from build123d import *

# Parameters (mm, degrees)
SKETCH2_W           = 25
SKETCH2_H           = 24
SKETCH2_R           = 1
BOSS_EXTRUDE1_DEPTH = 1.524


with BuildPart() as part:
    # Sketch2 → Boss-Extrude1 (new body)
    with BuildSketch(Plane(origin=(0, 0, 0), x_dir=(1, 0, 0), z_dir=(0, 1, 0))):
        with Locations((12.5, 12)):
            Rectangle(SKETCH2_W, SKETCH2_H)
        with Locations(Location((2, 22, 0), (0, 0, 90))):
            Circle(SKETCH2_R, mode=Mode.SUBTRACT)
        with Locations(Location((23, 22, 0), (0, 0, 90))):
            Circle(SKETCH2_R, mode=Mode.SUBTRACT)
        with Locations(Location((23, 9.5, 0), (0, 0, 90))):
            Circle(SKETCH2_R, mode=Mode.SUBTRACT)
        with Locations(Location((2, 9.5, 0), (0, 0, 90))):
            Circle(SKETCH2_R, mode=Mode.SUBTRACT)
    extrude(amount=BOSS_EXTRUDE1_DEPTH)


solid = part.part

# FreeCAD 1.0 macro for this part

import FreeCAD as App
import Part
import Sketcher
from FreeCAD import Vector


def add_polygon(sketch, points):
    """Adds a closed chain of lines whose ends are joined by coincident constraints."""
    first, n = sketch.GeometryCount, len(points)
    for a, b in zip(points, points[1:] + points[:1]):
        sketch.addGeometry(Part.LineSegment(App.Vector(*a, 0), App.Vector(*b, 0)), False)
    for i in range(n):
        sketch.addConstraint(Sketcher.Constraint("Coincident", first + i, 2, first + (i + 1) % n, 1))

doc = App.newDocument("Part")
body = doc.addObject("PartDesign::Body", "Body")

# Sketch on XZ plane
sketch1 = doc.addObject("Sketcher::SketchObject", "Sketch")
body.addObject(sketch1)
sketch1.AttachmentSupport = (doc.XZ_Plane, [""])
sketch1.MapMode = "FlatFace"
add_polygon(sketch1, [(0, -24), (0, 0), (25, 0), (25, -24)])  # lines 0-3
sketch1.addGeometry(Part.Circle(Vector(2, -9.5, 0), Vector(0, 0, 1), 1), False)  # 4
sketch1.addGeometry(Part.Circle(Vector(23, -9.5, 0), Vector(0, 0, 1), 1), False)  # 5
sketch1.addGeometry(Part.Circle(Vector(2, -22, 0), Vector(0, 0, 1), 1), False)  # 6
sketch1.addGeometry(Part.Circle(Vector(23, -22, 0), Vector(0, 0, 1), 1), False)  # 7
sketch1.addConstraint([
    Sketcher.Constraint("Vertical", 0),
    Sketcher.Constraint("Horizontal", 1),
    Sketcher.Constraint("Vertical", 2),
    Sketcher.Constraint("Horizontal", 3),
    Sketcher.Constraint("Coincident", 0, 2, -1, 1),
    Sketcher.Constraint("Equal", 4, 5),
    Sketcher.Constraint("Equal", 5, 6),
    Sketcher.Constraint("Equal", 6, 7),
    Sketcher.Constraint("Horizontal", 4, 3, 5, 3),
    Sketcher.Constraint("Horizontal", 6, 3, 7, 3),
    Sketcher.Constraint("Vertical", 4, 3, 6, 3),
    Sketcher.Constraint("Vertical", 5, 3, 7, 3),
    Sketcher.Constraint("Diameter", 4, 2.0),
    Sketcher.Constraint("DistanceX", 1, 1, 1, 2, 25.0),
    Sketcher.Constraint("DistanceY", 0, 1, 0, 2, 24.0),
    Sketcher.Constraint("DistanceX", -1, 1, 4, 3, 2.0),
    Sketcher.Constraint("DistanceX", -1, 1, 5, 3, 23.0),
    Sketcher.Constraint("DistanceY", 6, 3, -1, 1, 22.0),
    Sketcher.Constraint("DistanceY", 4, 3, -1, 1, 9.5),
])
pad1 = doc.addObject("PartDesign::Pad", "Pad")
body.addObject(pad1)
pad1.Profile = sketch1
pad1.Length = 1.524
pad1.Reversed = True

doc.recompute()
